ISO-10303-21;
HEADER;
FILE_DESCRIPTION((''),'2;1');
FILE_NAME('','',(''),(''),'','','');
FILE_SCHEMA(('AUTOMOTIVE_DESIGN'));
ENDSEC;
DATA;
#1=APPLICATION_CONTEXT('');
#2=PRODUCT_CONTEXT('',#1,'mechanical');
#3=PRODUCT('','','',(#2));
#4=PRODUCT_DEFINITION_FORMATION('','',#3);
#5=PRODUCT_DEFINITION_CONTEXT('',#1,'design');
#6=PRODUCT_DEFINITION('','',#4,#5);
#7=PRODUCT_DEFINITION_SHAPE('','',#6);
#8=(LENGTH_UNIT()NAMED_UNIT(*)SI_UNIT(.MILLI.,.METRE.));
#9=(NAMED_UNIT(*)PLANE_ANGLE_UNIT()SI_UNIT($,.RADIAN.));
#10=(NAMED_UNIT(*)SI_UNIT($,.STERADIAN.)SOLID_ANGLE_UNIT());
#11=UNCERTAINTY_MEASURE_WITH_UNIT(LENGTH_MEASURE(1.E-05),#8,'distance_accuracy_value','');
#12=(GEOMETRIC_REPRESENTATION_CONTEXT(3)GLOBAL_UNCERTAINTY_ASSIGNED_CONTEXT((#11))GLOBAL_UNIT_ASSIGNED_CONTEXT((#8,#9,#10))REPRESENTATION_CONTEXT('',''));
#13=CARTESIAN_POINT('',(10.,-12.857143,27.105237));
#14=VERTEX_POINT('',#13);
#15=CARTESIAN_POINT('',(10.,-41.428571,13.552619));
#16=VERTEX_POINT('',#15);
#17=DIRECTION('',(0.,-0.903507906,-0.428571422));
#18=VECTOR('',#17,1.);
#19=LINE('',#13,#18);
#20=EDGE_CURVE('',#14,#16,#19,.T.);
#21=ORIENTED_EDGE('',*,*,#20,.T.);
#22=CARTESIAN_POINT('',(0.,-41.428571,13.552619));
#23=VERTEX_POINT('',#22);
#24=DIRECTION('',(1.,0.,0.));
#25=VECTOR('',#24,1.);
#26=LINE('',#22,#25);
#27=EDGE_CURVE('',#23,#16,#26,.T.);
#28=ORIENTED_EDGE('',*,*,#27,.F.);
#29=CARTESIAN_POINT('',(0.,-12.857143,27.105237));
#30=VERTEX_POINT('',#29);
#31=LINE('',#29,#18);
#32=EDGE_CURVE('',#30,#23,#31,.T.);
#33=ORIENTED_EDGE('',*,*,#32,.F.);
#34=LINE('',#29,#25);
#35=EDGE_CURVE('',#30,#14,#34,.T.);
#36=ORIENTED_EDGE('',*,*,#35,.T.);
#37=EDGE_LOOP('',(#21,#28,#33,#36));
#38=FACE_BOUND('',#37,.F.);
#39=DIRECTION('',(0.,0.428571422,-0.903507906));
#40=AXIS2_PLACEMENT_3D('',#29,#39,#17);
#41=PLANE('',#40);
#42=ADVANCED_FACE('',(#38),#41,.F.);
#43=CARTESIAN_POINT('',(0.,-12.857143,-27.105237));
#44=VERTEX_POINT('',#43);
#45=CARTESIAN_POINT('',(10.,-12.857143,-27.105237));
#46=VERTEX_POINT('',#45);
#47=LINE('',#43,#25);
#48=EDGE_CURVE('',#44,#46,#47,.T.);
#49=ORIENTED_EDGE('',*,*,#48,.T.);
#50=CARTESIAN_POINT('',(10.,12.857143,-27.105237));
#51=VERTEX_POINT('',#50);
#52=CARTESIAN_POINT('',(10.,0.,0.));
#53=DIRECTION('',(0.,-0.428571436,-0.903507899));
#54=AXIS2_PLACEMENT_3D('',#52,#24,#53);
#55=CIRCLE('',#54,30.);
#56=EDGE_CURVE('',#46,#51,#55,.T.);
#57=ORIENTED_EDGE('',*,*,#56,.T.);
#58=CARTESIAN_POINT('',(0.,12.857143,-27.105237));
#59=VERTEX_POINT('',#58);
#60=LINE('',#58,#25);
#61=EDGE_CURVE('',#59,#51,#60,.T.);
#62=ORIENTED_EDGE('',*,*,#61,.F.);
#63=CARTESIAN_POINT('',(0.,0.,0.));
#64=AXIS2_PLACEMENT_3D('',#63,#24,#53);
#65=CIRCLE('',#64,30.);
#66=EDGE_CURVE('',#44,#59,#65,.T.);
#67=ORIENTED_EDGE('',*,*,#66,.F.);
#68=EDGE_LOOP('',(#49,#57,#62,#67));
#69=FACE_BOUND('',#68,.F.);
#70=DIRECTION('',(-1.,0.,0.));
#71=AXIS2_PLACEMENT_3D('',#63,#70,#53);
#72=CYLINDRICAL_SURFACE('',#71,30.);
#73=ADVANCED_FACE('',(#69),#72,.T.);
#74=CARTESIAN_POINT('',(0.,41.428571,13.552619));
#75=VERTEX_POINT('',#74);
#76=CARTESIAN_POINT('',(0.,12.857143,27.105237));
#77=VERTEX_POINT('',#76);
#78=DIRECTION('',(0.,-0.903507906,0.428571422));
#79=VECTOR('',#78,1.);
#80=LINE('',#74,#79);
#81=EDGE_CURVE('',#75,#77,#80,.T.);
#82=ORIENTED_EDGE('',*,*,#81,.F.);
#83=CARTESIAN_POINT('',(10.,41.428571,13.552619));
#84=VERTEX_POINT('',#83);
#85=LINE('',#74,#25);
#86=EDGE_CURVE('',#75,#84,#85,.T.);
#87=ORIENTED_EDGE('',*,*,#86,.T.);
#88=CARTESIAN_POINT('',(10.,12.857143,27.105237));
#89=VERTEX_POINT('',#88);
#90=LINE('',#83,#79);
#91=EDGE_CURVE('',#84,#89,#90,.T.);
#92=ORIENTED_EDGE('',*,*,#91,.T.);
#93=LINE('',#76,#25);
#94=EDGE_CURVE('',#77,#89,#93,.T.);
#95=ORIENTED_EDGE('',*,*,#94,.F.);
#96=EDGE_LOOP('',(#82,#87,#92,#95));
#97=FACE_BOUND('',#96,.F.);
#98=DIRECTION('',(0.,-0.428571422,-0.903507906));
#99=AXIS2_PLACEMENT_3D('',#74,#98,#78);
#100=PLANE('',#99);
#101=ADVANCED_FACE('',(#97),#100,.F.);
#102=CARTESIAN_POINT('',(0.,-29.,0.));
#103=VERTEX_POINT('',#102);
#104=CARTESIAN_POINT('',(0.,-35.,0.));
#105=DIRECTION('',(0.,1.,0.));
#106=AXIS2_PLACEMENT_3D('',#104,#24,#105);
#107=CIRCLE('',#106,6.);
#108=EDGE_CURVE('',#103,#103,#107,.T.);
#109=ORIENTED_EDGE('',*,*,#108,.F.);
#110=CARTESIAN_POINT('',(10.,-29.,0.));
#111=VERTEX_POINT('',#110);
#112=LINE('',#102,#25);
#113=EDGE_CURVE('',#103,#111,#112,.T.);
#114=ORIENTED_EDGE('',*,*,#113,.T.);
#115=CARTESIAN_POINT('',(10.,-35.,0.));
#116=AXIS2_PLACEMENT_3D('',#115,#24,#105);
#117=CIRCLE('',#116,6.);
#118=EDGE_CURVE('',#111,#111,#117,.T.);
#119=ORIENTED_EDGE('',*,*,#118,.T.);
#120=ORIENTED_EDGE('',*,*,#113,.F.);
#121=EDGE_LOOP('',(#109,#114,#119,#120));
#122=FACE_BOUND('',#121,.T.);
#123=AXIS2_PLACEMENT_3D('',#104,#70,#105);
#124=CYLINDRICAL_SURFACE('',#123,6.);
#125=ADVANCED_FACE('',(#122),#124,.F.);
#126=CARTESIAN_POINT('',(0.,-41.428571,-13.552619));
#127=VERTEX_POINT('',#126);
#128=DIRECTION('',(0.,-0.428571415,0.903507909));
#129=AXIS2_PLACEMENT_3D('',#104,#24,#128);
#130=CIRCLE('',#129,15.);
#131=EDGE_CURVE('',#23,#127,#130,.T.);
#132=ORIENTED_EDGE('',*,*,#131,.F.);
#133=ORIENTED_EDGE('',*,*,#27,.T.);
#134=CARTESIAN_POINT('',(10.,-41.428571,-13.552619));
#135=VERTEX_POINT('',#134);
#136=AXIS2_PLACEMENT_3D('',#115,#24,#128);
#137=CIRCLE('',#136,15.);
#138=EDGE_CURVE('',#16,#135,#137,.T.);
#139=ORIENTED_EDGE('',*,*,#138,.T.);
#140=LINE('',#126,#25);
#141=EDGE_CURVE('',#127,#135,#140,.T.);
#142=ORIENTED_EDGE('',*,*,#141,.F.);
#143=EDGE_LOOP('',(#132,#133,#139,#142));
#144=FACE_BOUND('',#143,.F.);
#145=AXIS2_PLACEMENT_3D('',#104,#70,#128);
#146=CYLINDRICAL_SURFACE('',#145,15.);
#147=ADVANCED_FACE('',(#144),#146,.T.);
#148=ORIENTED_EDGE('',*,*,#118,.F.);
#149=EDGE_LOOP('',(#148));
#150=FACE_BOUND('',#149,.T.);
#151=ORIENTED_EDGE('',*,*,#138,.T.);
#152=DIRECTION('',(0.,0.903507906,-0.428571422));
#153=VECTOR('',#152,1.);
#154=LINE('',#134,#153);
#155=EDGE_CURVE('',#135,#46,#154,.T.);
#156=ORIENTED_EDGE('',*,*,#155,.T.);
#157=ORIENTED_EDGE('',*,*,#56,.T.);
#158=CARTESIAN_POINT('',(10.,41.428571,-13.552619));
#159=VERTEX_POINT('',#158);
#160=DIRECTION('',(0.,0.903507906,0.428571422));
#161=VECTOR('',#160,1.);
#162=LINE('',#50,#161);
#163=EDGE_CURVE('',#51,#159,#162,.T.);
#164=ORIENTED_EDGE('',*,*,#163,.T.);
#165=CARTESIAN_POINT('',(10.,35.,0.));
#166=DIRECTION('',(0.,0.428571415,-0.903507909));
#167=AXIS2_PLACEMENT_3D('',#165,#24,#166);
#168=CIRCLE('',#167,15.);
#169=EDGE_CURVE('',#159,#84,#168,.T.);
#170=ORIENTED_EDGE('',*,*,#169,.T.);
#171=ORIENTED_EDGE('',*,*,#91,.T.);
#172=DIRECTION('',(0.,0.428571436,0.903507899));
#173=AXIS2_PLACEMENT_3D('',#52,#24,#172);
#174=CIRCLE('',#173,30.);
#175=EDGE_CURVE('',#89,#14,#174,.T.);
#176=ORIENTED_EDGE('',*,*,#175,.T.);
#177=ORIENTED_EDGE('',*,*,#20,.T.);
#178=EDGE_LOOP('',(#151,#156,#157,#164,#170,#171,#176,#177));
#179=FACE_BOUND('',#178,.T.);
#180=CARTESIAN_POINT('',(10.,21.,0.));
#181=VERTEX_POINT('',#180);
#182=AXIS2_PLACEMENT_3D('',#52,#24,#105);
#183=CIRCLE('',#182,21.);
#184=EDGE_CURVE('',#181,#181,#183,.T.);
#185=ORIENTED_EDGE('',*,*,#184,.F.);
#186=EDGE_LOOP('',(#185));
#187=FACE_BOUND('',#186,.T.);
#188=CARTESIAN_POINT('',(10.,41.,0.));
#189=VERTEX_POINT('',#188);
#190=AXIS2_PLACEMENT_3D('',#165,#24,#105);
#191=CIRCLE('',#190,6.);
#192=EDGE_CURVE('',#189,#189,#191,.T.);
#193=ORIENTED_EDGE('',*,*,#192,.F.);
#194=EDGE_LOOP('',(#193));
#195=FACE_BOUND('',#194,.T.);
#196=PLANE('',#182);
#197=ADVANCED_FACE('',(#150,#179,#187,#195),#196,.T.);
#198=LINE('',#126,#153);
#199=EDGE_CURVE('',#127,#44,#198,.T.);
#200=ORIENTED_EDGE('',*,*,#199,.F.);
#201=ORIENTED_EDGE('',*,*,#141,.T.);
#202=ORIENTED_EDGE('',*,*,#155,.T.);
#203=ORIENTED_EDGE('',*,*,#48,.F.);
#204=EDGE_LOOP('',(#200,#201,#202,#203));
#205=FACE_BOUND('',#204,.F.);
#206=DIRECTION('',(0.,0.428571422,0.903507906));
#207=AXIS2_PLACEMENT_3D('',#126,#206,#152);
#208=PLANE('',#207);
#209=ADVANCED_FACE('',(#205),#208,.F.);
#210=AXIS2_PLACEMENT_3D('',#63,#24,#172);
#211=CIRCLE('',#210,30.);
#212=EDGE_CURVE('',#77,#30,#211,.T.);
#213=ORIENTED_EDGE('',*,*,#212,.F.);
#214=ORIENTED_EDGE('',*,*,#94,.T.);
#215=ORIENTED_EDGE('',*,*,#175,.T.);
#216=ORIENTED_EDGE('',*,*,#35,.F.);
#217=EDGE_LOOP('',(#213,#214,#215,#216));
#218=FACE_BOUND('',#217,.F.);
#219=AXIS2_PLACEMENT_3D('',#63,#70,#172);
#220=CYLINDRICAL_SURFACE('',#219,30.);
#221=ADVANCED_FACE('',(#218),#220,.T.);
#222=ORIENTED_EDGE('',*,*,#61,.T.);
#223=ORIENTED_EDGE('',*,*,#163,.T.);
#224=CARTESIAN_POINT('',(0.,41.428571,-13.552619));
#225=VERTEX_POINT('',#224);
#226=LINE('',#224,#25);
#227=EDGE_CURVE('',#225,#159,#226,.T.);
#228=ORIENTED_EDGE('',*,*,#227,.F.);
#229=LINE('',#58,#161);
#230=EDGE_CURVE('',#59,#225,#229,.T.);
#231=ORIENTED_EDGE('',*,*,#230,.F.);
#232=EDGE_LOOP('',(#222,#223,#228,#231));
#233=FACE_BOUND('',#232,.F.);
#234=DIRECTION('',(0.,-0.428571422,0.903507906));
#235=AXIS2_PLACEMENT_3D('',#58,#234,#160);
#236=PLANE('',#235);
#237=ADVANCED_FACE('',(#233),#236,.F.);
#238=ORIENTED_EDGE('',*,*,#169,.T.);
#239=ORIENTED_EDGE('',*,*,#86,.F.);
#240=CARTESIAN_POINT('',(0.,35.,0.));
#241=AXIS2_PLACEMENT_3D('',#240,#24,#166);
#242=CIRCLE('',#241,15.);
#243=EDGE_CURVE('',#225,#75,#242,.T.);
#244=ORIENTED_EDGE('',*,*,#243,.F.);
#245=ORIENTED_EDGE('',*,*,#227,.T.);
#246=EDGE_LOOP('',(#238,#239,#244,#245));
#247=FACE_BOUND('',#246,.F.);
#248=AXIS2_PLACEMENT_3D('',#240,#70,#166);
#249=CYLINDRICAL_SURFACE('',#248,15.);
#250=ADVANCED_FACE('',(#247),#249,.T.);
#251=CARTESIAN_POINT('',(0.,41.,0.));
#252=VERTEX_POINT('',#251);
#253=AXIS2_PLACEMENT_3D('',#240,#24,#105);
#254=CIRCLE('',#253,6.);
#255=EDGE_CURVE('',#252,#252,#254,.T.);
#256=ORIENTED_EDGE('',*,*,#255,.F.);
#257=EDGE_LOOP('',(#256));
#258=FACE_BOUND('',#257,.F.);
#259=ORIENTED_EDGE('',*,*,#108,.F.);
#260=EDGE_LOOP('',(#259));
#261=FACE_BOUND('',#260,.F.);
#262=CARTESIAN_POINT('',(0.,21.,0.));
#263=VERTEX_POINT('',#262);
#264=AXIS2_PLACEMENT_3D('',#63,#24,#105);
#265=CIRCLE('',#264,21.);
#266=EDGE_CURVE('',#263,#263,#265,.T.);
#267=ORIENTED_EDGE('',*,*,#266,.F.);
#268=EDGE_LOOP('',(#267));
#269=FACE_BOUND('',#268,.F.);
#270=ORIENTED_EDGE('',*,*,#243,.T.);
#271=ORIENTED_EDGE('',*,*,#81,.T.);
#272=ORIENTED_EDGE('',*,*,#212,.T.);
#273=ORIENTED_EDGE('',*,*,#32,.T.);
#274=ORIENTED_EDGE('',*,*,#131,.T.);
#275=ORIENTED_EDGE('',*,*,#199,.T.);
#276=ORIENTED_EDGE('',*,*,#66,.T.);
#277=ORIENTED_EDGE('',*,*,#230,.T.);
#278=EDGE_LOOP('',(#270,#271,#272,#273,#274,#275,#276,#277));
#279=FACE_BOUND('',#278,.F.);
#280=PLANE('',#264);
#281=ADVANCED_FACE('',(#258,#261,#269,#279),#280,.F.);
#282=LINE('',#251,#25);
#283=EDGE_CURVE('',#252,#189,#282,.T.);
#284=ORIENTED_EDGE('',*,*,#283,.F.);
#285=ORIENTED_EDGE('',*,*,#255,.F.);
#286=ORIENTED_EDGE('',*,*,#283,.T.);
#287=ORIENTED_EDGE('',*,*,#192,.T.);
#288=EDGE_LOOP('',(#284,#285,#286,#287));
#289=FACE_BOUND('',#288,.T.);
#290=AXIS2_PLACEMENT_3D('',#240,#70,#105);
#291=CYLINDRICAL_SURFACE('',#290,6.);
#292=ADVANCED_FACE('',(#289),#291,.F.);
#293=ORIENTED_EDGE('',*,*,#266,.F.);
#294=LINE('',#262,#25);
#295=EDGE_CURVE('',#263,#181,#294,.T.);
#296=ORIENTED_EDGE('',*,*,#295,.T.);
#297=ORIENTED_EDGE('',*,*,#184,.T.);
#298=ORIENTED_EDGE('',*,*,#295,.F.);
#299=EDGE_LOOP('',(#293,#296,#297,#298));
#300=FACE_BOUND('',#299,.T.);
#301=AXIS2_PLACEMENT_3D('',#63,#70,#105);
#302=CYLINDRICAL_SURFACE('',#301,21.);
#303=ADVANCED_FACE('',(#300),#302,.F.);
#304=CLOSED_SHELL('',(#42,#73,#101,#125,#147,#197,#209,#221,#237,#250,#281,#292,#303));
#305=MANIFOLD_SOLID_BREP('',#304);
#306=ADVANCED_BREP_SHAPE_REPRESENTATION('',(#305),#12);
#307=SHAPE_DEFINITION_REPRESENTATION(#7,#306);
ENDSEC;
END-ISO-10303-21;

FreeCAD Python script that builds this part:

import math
import FreeCAD as App
import Part
import Sketcher

V = App.Vector
Q = App.Units.Quantity

doc = App.newDocument("Part")
body = doc.addObject("PartDesign::Body", "Body")

sketch1 = body.newObject("Sketcher::SketchObject", "Sketch")
sketch1.AttachmentSupport = (doc.getObject("YZ_Plane"), [""])
sketch1.MapMode = "FlatFace"
sketch1.addGeometry([
    Part.LineSegment(V(-41.428571, -13.552619, 0), V(-12.857143, -27.105237, 0)),
    Part.ArcOfCircle(Part.Circle(V(0, 0, 0), V(0, 0, 1), 30), math.radians(-115.376934), math.radians(-64.623066)),
    Part.LineSegment(V(12.857143, -27.105237, 0), V(41.428571, -13.552619, 0)),
    Part.ArcOfCircle(Part.Circle(V(35, 0, 0), V(0, 0, 1), 15), math.radians(-64.623067), math.radians(64.623067)),
    Part.LineSegment(V(41.428571, 13.552619, 0), V(12.857143, 27.105237, 0)),
    Part.ArcOfCircle(Part.Circle(V(0, 0, 0), V(0, 0, 1), 30), math.radians(64.623066), math.radians(115.376934)),
    Part.LineSegment(V(-12.857143, 27.105237, 0), V(-41.428571, 13.552619, 0)),
    Part.ArcOfCircle(Part.Circle(V(-35, 0, 0), V(0, 0, 1), 15), math.radians(115.376933), math.radians(244.623067)),
    Part.Circle(V(-35, 0, 0), V(0, 0, 1), 6),
    Part.Circle(V(0, 0, 0), V(0, 0, 1), 21),
    Part.Circle(V(35, 0, 0), V(0, 0, 1), 6),
], False)
sketch1.addConstraint([
    Sketcher.Constraint("Tangent", 0, 2, 1, 1),
    Sketcher.Constraint("Tangent", 1, 2, 2, 1),
    Sketcher.Constraint("Tangent", 2, 2, 3, 1),
    Sketcher.Constraint("Tangent", 3, 2, 4, 1),
    Sketcher.Constraint("Tangent", 4, 2, 5, 1),
    Sketcher.Constraint("Tangent", 5, 2, 6, 1),
    Sketcher.Constraint("Tangent", 6, 2, 7, 1),
    Sketcher.Constraint("Tangent", 7, 2, 0, 1),
    Sketcher.Constraint("Coincident", 1, 3, -1, 1),
    Sketcher.Constraint("Coincident", 5, 3, -1, 1),
    Sketcher.Constraint("Coincident", 9, 3, -1, 1),
    Sketcher.Constraint("Coincident", 8, 3, 7, 3),
    Sketcher.Constraint("Coincident", 10, 3, 3, 3),
    Sketcher.Constraint("Equal", 1, 5),
    Sketcher.Constraint("Equal", 3, 7),
    Sketcher.Constraint("Equal", 8, 10),
    Sketcher.Constraint("Symmetric", 3, 3, 7, 3, -1, 1),
    Sketcher.Constraint("PointOnObject", 3, 3, -1),
    Sketcher.Constraint("Diameter", 8, Q("12 mm")),
    Sketcher.Constraint("Diameter", 9, Q("42 mm")),
    Sketcher.Constraint("Radius", 1, Q("30 mm")),
    Sketcher.Constraint("Radius", 3, Q("15 mm")),
    Sketcher.Constraint("DistanceX", -1, 1, 3, 3, Q("35 mm")),
])
pad1 = body.newObject("PartDesign::Pad", "Pad")
pad1.Profile = sketch1
pad1.Length = 10

doc.recompute()
